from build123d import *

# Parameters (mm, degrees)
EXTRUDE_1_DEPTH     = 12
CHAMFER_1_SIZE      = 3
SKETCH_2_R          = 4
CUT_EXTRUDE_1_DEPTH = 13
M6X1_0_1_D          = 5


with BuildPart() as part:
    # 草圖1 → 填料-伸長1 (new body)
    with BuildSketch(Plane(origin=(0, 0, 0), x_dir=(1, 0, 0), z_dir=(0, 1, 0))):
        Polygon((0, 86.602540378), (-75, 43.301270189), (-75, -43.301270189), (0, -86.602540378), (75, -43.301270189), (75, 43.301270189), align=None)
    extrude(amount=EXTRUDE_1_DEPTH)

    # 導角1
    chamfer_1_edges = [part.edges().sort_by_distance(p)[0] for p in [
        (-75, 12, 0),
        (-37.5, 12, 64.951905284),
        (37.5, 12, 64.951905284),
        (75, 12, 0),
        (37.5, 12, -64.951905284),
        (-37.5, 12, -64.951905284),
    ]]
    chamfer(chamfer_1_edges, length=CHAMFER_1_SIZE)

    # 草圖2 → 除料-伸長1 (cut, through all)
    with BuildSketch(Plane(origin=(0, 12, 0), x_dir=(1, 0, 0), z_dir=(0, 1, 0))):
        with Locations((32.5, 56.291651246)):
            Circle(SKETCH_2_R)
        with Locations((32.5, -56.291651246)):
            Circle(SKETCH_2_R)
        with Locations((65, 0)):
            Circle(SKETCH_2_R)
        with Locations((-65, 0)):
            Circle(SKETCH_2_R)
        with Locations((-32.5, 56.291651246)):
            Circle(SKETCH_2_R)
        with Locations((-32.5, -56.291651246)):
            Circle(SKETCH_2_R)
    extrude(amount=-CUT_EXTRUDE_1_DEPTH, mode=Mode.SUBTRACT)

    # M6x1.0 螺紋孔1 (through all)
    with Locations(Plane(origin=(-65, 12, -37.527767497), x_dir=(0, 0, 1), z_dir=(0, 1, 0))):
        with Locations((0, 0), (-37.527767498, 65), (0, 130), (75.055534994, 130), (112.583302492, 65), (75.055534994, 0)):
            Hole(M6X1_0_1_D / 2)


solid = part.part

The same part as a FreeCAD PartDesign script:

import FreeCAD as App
import Part
import Sketcher
Q = App.Units.Quantity


def edges_at(feature, points):
    """Names of the edges that pass closest to the given points."""
    edges = feature.Shape.Edges
    near = lambda p: min(range(len(edges)), key=lambda i: edges[i].distToShape(Part.Vertex(*p))[0])
    return sorted({f"Edge{near(p) + 1}" for p in points})


def add_polygon(sketch, points):
    """Adds a closed chain of lines whose ends are joined by coincident constraints."""
    first, n = sketch.GeometryCount, len(points)
    for a, b in zip(points, points[1:] + points[:1]):
        sketch.addGeometry(Part.LineSegment(App.Vector(*a, 0), App.Vector(*b, 0)), False)
    for i in range(n):
        sketch.addConstraint(Sketcher.Constraint("Coincident", first + i, 2, first + (i + 1) % n, 1))

doc = App.newDocument("Part")
body = doc.addObject("PartDesign::Body", "Body")

sketch1 = body.newObject("Sketcher::SketchObject", "Sketch")
sketch1.AttachmentSupport = (doc.getObject("XZ_Plane"), [""])
sketch1.MapMode = "FlatFace"
add_polygon(sketch1, [(0, -87), (-75, -43), (-75, 43), (0, 87), (75, 43), (75, -43)])
sketch1.addConstraint(Sketcher.Constraint("Vertical", 1))
sketch1.addConstraint(Sketcher.Constraint("Vertical", 4))
sketch1.addConstraint(Sketcher.Constraint("Symmetric", 0, 2, 3, 2, -1, 1))
sketch1.addConstraint(Sketcher.Constraint("Symmetric", 2, 2, 5, 2, -1, 1))
sketch1.addConstraint(Sketcher.Constraint("PointOnObject", 2, 2, -2))
sketch1.addConstraint(Sketcher.Constraint("Parallel", 2, 5))
sketch1.addConstraint(Sketcher.Constraint("Horizontal", 1, 2, 3, 2))
sketch1.addConstraint(Sketcher.Constraint("Angle", 0, Q("150 deg")))
sketch1.addConstraint(Sketcher.Constraint("DistanceX", 0, 2, -1, 1, 75.0))
sketch1.addConstraint(Sketcher.Constraint("DistanceY", 1, 1, 1, 2, 86.60254))
pad1 = body.newObject("PartDesign::Pad", "Pad")
pad1.Profile = sketch1
pad1.Length = 12
pad1.Reversed = True
doc.recompute()

chamfer = body.newObject("PartDesign::Chamfer", "Chamfer")
chamfer.Base = (pad1, edges_at(pad1, [
    (-75, 12, 0),
    (-37.5, 12, 64.952),
    (37.5, 12, 64.952),
    (75, 12, 0),
    (37.5, 12, -64.952),
    (-37.5, 12, -64.952),
]))
chamfer.Size = 3

sketch2 = body.newObject("Sketcher::SketchObject", "Sketch001")
sketch2.AttachmentSupport = (doc.getObject("XZ_Plane"), [""])
sketch2.MapMode = "FlatFace"
sketch2.AttachmentOffset = App.Placement(App.Vector(0, 0, -12), App.Rotation())
sketch2.addGeometry(Part.Circle(App.Vector(32.5, -56.3, 0), App.Vector(0, 0, 1), 4), False)
sketch2.addGeometry(Part.Circle(App.Vector(32.5, 56.3, 0), App.Vector(0, 0, 1), 4), False)
sketch2.addGeometry(Part.Circle(App.Vector(65, 0, 0), App.Vector(0, 0, 1), 4), False)
sketch2.addGeometry(Part.Circle(App.Vector(-65, 0, 0), App.Vector(0, 0, 1), 4), False)
sketch2.addGeometry(Part.Circle(App.Vector(-32.5, -56.3, 0), App.Vector(0, 0, 1), 4), False)
sketch2.addGeometry(Part.Circle(App.Vector(-32.5, 56.3, 0), App.Vector(0, 0, 1), 4), False)
sketch2.addConstraint(Sketcher.Constraint("Equal", 0, 1))
sketch2.addConstraint(Sketcher.Constraint("Equal", 1, 2))
sketch2.addConstraint(Sketcher.Constraint("Equal", 2, 3))
sketch2.addConstraint(Sketcher.Constraint("Equal", 3, 4))
sketch2.addConstraint(Sketcher.Constraint("Equal", 4, 5))
sketch2.addConstraint(Sketcher.Constraint("Symmetric", 2, 3, 3, 3, -1, 1))
sketch2.addConstraint(Sketcher.Constraint("Symmetric", 1, 3, 4, 3, -1, 1))
sketch2.addConstraint(Sketcher.Constraint("Symmetric", 0, 3, 5, 3, -1, 1))
sketch2.addConstraint(Sketcher.Constraint("Symmetric", 0, 3, 4, 3, -2))
sketch2.addConstraint(Sketcher.Constraint("PointOnObject", 2, 3, -1))
sketch2.addConstraint(Sketcher.Constraint("Diameter", 0, 8.0))
sketch2.addConstraint(Sketcher.Constraint("DistanceX", -1, 1, 2, 3, 65.0))
sketch2.addConstraint(Sketcher.Constraint("DistanceX", 4, 3, 0, 3, 65.0))
sketch2.addConstraint(Sketcher.Constraint("DistanceY", 0, 3, -1, 1, 56.291651))
pocket1 = body.newObject("PartDesign::Pocket", "Pocket")
pocket1.Profile = sketch2
pocket1.Type = "ThroughAll"
pocket1.Reversed = True

sketch3 = body.newObject("Sketcher::SketchObject", "Sketch002")
sketch3.AttachmentSupport = (doc.getObject("XZ_Plane"), [""])
sketch3.MapMode = "FlatFace"
sketch3.AttachmentOffset = App.Placement(App.Vector(0, 0, -12), App.Rotation())
sketch3.addGeometry(Part.Circle(App.Vector(-65, -37.5, 0), App.Vector(0, 0, 1), 2.5), False)
sketch3.addGeometry(Part.Circle(App.Vector(0, -75.1, 0), App.Vector(0, 0, 1), 2.5), False)
sketch3.addGeometry(Part.Circle(App.Vector(65, -37.5, 0), App.Vector(0, 0, 1), 2.5), False)
sketch3.addGeometry(Part.Circle(App.Vector(65, 37.5, 0), App.Vector(0, 0, 1), 2.5), False)
sketch3.addGeometry(Part.Circle(App.Vector(0, 75.1, 0), App.Vector(0, 0, 1), 2.5), False)
sketch3.addGeometry(Part.Circle(App.Vector(-65, 37.5, 0), App.Vector(0, 0, 1), 2.5), False)
sketch3.addConstraint(Sketcher.Constraint("Equal", 0, 1))
sketch3.addConstraint(Sketcher.Constraint("Equal", 1, 2))
sketch3.addConstraint(Sketcher.Constraint("Equal", 2, 3))
sketch3.addConstraint(Sketcher.Constraint("Equal", 3, 4))
sketch3.addConstraint(Sketcher.Constraint("Equal", 4, 5))
sketch3.addConstraint(Sketcher.Constraint("Symmetric", 0, 3, 3, 3, -1, 1))
sketch3.addConstraint(Sketcher.Constraint("Symmetric", 1, 3, 4, 3, -1, 1))
sketch3.addConstraint(Sketcher.Constraint("Symmetric", 2, 3, 5, 3, -1, 1))
sketch3.addConstraint(Sketcher.Constraint("Symmetric", 0, 3, 2, 3, -2))
sketch3.addConstraint(Sketcher.Constraint("PointOnObject", 1, 3, -2))
sketch3.addConstraint(Sketcher.Constraint("Diameter", 0, 5.0))
sketch3.addConstraint(Sketcher.Constraint("DistanceX", 0, 3, -1, 1, 65.0))
sketch3.addConstraint(Sketcher.Constraint("DistanceY", 1, 3, 4, 3, 150.11107))
sketch3.addConstraint(Sketcher.Constraint("DistanceY", 0, 3, -1, 1, 37.527767))
doc.recompute()
hole = body.newObject("PartDesign::Hole", "Hole")
hole.Profile = sketch3
hole.ThreadType = "None"
hole.Diameter = 5
hole.DepthType = "ThroughAll"
hole.Reversed = True

doc.recompute()
